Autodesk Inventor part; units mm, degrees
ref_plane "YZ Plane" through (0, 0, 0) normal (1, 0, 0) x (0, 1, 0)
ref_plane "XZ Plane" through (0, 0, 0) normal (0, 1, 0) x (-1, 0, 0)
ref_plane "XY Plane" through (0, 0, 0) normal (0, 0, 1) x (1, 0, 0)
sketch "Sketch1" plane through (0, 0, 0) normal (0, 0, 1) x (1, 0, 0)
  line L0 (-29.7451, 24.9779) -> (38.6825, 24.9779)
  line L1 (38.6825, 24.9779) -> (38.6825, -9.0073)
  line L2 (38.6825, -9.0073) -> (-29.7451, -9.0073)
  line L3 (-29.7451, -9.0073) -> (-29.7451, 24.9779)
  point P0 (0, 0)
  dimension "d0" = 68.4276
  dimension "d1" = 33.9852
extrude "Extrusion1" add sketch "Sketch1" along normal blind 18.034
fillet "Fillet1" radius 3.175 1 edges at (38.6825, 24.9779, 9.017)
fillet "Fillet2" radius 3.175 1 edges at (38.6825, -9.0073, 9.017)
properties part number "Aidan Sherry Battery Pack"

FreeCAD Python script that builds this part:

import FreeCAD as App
import Part
import Sketcher

V = App.Vector
Q = App.Units.Quantity


def edges_at(feature, points):
    """Names of the edges that pass closest to the given points."""
    edges = feature.Shape.Edges
    near = lambda p: min(range(len(edges)), key=lambda i: edges[i].distToShape(Part.Vertex(*p))[0])
    return sorted({f"Edge{near(p) + 1}" for p in points})

doc = App.newDocument("Part")
body = doc.addObject("PartDesign::Body", "Body")

# Sketch on XY plane
sketch1 = doc.addObject("Sketcher::SketchObject", "Sketch")
body.addObject(sketch1)
sketch1.AttachmentSupport = (doc.XY_Plane, [""])
sketch1.MapMode = "FlatFace"
sketch1.addGeometry([
    Part.LineSegment(V(38.6825, 24.9779, 0), V(-29.7451, 24.9779, 0)),
    Part.LineSegment(V(-29.7451, 24.9779, 0), V(-29.7451, -9.0073, 0)),
    Part.LineSegment(V(-29.7451, -9.0073, 0), V(38.6825, -9.0073, 0)),
    Part.LineSegment(V(38.6825, -9.0073, 0), V(38.6825, 24.9779, 0)),
], False)
sketch1.addConstraint([
    Sketcher.Constraint("Coincident", 0, 2, 1, 1),
    Sketcher.Constraint("Coincident", 1, 2, 2, 1),
    Sketcher.Constraint("Coincident", 2, 2, 3, 1),
    Sketcher.Constraint("Coincident", 3, 2, 0, 1),
    Sketcher.Constraint("Horizontal", 0),
    Sketcher.Constraint("Vertical", 1),
    Sketcher.Constraint("Horizontal", 2),
    Sketcher.Constraint("Vertical", 3),
    Sketcher.Constraint("DistanceX", 0, 2, 0, 1, Q("2.694 in")),
    Sketcher.Constraint("DistanceY", 1, 2, 1, 1, Q("1.338 in")),
    Sketcher.Constraint("DistanceX", 0, 2, -1, 1, Q("29.745 mm")),
    Sketcher.Constraint("DistanceY", -1, 1, 0, 2, Q("24.978 mm")),
])
pad1 = doc.addObject("PartDesign::Pad", "Pad")
body.addObject(pad1)
pad1.Profile = sketch1
pad1.Length = Q("0.71 in")
doc.recompute()

fillet = doc.addObject("PartDesign::Fillet", "Fillet")
body.addObject(fillet)
fillet.Base = (pad1, edges_at(pad1, [(38.682, 24.978, 9.017)]))
fillet.Radius = Q("0.125 in")
doc.recompute()

fillet2 = doc.addObject("PartDesign::Fillet", "Fillet001")
body.addObject(fillet2)
fillet2.Base = (fillet, edges_at(fillet, [(38.682, -9.007, 9.017)]))
fillet2.Radius = Q("0.125 in")

doc.recompute()
